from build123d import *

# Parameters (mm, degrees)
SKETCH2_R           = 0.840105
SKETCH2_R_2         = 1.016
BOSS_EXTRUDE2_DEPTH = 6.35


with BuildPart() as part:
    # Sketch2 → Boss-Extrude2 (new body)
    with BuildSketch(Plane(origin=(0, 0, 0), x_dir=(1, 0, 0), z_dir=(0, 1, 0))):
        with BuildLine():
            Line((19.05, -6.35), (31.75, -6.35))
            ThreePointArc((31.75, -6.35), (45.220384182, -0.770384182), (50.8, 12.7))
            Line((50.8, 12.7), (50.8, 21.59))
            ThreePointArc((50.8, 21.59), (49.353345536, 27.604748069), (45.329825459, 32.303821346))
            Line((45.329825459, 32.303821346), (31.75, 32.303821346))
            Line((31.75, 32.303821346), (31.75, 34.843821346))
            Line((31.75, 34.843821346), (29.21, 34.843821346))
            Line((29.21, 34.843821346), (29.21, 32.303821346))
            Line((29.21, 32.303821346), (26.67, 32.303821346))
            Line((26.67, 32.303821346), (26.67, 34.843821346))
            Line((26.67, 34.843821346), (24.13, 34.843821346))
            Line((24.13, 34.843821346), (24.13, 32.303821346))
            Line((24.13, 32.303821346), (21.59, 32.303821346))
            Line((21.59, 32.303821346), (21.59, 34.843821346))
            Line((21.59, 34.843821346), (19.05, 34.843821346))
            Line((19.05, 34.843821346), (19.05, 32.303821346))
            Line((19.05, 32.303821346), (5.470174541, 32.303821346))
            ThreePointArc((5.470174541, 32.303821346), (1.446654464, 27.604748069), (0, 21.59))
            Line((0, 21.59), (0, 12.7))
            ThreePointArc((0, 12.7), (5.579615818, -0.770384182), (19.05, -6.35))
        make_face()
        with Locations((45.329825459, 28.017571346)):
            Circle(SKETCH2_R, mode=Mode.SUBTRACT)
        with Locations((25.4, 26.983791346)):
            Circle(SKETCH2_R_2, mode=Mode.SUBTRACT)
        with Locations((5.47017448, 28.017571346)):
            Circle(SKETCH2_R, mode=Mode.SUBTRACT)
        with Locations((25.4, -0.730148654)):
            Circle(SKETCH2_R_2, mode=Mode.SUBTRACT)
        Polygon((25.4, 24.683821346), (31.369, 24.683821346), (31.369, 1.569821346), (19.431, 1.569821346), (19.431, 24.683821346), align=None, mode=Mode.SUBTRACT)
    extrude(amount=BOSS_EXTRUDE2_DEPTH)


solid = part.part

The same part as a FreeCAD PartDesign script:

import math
import FreeCAD as App
import Part
import Sketcher

V = App.Vector
Q = App.Units.Quantity

doc = App.newDocument("Part")
body = doc.addObject("PartDesign::Body", "Body")

# Sketch on XZ plane
sketch1 = body.newObject("Sketcher::SketchObject", "Sketch")
sketch1.AttachmentSupport = (doc.getObject("XZ_Plane"), [""])
sketch1.MapMode = "FlatFace"
sketch1.addGeometry(Part.LineSegment(V(19.05, 6.35, 0), V(31.75, 6.35, 0)), False)
sketch1.addGeometry(Part.ArcOfCircle(Part.Circle(V(31.75, -12.7, 0), V(0, 0, 1), 19.05), math.radians(0), math.radians(90)), False)
sketch1.addGeometry(Part.LineSegment(V(50.8, -12.7, 0), V(50.8, -21.59, 0)), False)
sketch1.addGeometry(Part.ArcOfCircle(Part.Circle(V(37.572929, -21.59, 0), V(0, 0, 1), 13.227071), math.radians(-54.095145), math.radians(0)), False)
sketch1.addGeometry(Part.LineSegment(V(45.329825, -32.303821, 0), V(31.75, -32.303821, 0)), False)
sketch1.addGeometry(Part.LineSegment(V(31.75, -32.303821, 0), V(31.75, -34.843821, 0)), False)
sketch1.addGeometry(Part.LineSegment(V(31.75, -34.843821, 0), V(29.21, -34.843821, 0)), False)
sketch1.addGeometry(Part.LineSegment(V(29.21, -34.843821, 0), V(29.21, -32.303821, 0)), False)
sketch1.addGeometry(Part.LineSegment(V(29.21, -32.303821, 0), V(26.67, -32.303821, 0)), False)
sketch1.addGeometry(Part.LineSegment(V(26.67, -32.303821, 0), V(26.67, -34.843821, 0)), False)
sketch1.addGeometry(Part.LineSegment(V(26.67, -34.843821, 0), V(24.13, -34.843821, 0)), False)
sketch1.addGeometry(Part.LineSegment(V(24.13, -34.843821, 0), V(24.13, -32.303821, 0)), False)
sketch1.addGeometry(Part.LineSegment(V(24.13, -32.303821, 0), V(21.59, -32.303821, 0)), False)
sketch1.addGeometry(Part.LineSegment(V(21.59, -32.303821, 0), V(21.59, -34.843821, 0)), False)
sketch1.addGeometry(Part.LineSegment(V(21.59, -34.843821, 0), V(19.05, -34.843821, 0)), False)
sketch1.addGeometry(Part.LineSegment(V(19.05, -34.843821, 0), V(19.05, -32.303821, 0)), False)
sketch1.addGeometry(Part.LineSegment(V(19.05, -32.303821, 0), V(5.470175, -32.303821, 0)), False)
sketch1.addGeometry(Part.ArcOfCircle(Part.Circle(V(13.227071, -21.59, 0), V(0, 0, 1), 13.227071), math.radians(-180), math.radians(-125.904855)), False)
sketch1.addGeometry(Part.LineSegment(V(0, -21.59, 0), V(0, -12.7, 0)), False)
sketch1.addGeometry(Part.ArcOfCircle(Part.Circle(V(19.05, -12.7, 0), V(0, 0, 1), 19.05), math.radians(90), math.radians(180)), False)
sketch1.addGeometry(Part.Circle(V(25.4, 0.730149, 0), V(0, 0, 1), 1.016), False)
sketch1.addGeometry(Part.LineSegment(V(19.431, -24.683821, 0), V(31.369, -24.683821, 0)), False)
sketch1.addGeometry(Part.LineSegment(V(31.369, -24.683821, 0), V(31.369, -1.569821, 0)), False)
sketch1.addGeometry(Part.LineSegment(V(31.369, -1.569821, 0), V(19.431, -1.569821, 0)), False)
sketch1.addGeometry(Part.LineSegment(V(19.431, -1.569821, 0), V(19.431, -24.683821, 0)), False)
sketch1.addGeometry(Part.Circle(V(5.470174, -28.017571, 0), V(0, 0, 1), 0.840105), False)
sketch1.addGeometry(Part.Circle(V(25.4, -26.983791, 0), V(0, 0, 1), 1.016), False)
sketch1.addGeometry(Part.Circle(V(45.329825, -28.017571, 0), V(0, 0, 1), 0.840105), False)
sketch1.addConstraint(Sketcher.Constraint("Tangent", 0, 2, 1, 2))
sketch1.addConstraint(Sketcher.Constraint("Tangent", 1, 1, 2, 1))
sketch1.addConstraint(Sketcher.Constraint("Tangent", 2, 2, 3, 2))
sketch1.addConstraint(Sketcher.Constraint("Coincident", 3, 1, 4, 1))
sketch1.addConstraint(Sketcher.Constraint("Coincident", 4, 2, 5, 1))
sketch1.addConstraint(Sketcher.Constraint("Coincident", 5, 2, 6, 1))
sketch1.addConstraint(Sketcher.Constraint("Coincident", 6, 2, 7, 1))
sketch1.addConstraint(Sketcher.Constraint("Coincident", 7, 2, 8, 1))
sketch1.addConstraint(Sketcher.Constraint("Coincident", 8, 2, 9, 1))
sketch1.addConstraint(Sketcher.Constraint("Coincident", 9, 2, 10, 1))
sketch1.addConstraint(Sketcher.Constraint("Coincident", 10, 2, 11, 1))
sketch1.addConstraint(Sketcher.Constraint("Coincident", 11, 2, 12, 1))
sketch1.addConstraint(Sketcher.Constraint("Coincident", 12, 2, 13, 1))
sketch1.addConstraint(Sketcher.Constraint("Coincident", 13, 2, 14, 1))
sketch1.addConstraint(Sketcher.Constraint("Coincident", 14, 2, 15, 1))
sketch1.addConstraint(Sketcher.Constraint("Coincident", 15, 2, 16, 1))
sketch1.addConstraint(Sketcher.Constraint("Coincident", 16, 2, 17, 2))
sketch1.addConstraint(Sketcher.Constraint("Tangent", 17, 1, 18, 1))
sketch1.addConstraint(Sketcher.Constraint("Tangent", 18, 2, 19, 2))
sketch1.addConstraint(Sketcher.Constraint("Tangent", 19, 1, 0, 1))
sketch1.addConstraint(Sketcher.Constraint("Coincident", 21, 2, 22, 1))
sketch1.addConstraint(Sketcher.Constraint("Coincident", 22, 2, 23, 1))
sketch1.addConstraint(Sketcher.Constraint("Coincident", 23, 2, 24, 1))
sketch1.addConstraint(Sketcher.Constraint("Coincident", 24, 2, 21, 1))
sketch1.addConstraint(Sketcher.Constraint("Horizontal", 0))
sketch1.addConstraint(Sketcher.Constraint("Vertical", 2))
sketch1.addConstraint(Sketcher.Constraint("Horizontal", 4))
sketch1.addConstraint(Sketcher.Constraint("Vertical", 5))
sketch1.addConstraint(Sketcher.Constraint("Horizontal", 6))
sketch1.addConstraint(Sketcher.Constraint("Vertical", 7))
sketch1.addConstraint(Sketcher.Constraint("Horizontal", 8))
sketch1.addConstraint(Sketcher.Constraint("Vertical", 9))
sketch1.addConstraint(Sketcher.Constraint("Horizontal", 10))
sketch1.addConstraint(Sketcher.Constraint("Vertical", 11))
sketch1.addConstraint(Sketcher.Constraint("Horizontal", 12))
sketch1.addConstraint(Sketcher.Constraint("Vertical", 13))
sketch1.addConstraint(Sketcher.Constraint("Horizontal", 14))
sketch1.addConstraint(Sketcher.Constraint("Vertical", 15))
sketch1.addConstraint(Sketcher.Constraint("Horizontal", 16))
sketch1.addConstraint(Sketcher.Constraint("Vertical", 18))
sketch1.addConstraint(Sketcher.Constraint("Horizontal", 21))
sketch1.addConstraint(Sketcher.Constraint("Vertical", 22))
sketch1.addConstraint(Sketcher.Constraint("Horizontal", 23))
sketch1.addConstraint(Sketcher.Constraint("Vertical", 24))
sketch1.addConstraint(Sketcher.Constraint("Equal", 3, 17))
sketch1.addConstraint(Sketcher.Constraint("Equal", 1, 19))
sketch1.addConstraint(Sketcher.Constraint("Equal", 20, 26))
sketch1.addConstraint(Sketcher.Constraint("Equal", 25, 27))
sketch1.addConstraint(Sketcher.Constraint("PointOnObject", 17, 1, -2))
sketch1.addConstraint(Sketcher.Constraint("Horizontal", 3, 3, 17, 3))
sketch1.addConstraint(Sketcher.Constraint("Horizontal", 25, 3, 27, 3))
sketch1.addConstraint(Sketcher.Constraint("Horizontal", 4, 2, 7, 2))
sketch1.addConstraint(Sketcher.Constraint("Horizontal", 6, 2, 9, 2))
sketch1.addConstraint(Sketcher.Constraint("Horizontal", 8, 2, 11, 2))
sketch1.addConstraint(Sketcher.Constraint("Horizontal", 10, 2, 13, 2))
sketch1.addConstraint(Sketcher.Constraint("Horizontal", 12, 2, 15, 2))
sketch1.addConstraint(Sketcher.Constraint("Vertical", 20, 3, 26, 3))
sketch1.addConstraint(Sketcher.Constraint("Vertical", 27, 3, 3, 1))
sketch1.addConstraint(Sketcher.Constraint("Vertical", 0, 2, 4, 2))
sketch1.addConstraint(Sketcher.Constraint("Vertical", 19, 3, 14, 2))
sketch1.addConstraint(Sketcher.Constraint("Vertical", 25, 3, 16, 2))
sketch1.addConstraint(Sketcher.Constraint("Equal", 6, 8))
sketch1.addConstraint(Sketcher.Constraint("Equal", 8, 10))
sketch1.addConstraint(Sketcher.Constraint("Equal", 10, 12))
sketch1.addConstraint(Sketcher.Constraint("Equal", 12, 14))
sketch1.addConstraint(Sketcher.Constraint("Equal", 14, 5))
sketch1.addConstraint(Sketcher.Constraint("Diameter", 20, Q("0.08 in")))
sketch1.addConstraint(Sketcher.Constraint("Radius", 1, Q("0.75 in")))
sketch1.addConstraint(Sketcher.Constraint("DistanceX", 0, 1, 0, 2, Q("0.5 in")))
sketch1.addConstraint(Sketcher.Constraint("DistanceX", -1, 1, 20, 3, Q("1 in")))
sketch1.addConstraint(Sketcher.Constraint("DistanceX", 21, 1, 21, 2, Q("0.47 in")))
sketch1.addConstraint(Sketcher.Constraint("DistanceY", 2, 2, 2, 1, Q("0.35 in")))
sketch1.addConstraint(Sketcher.Constraint("DistanceY", 22, 1, 22, 2, Q("0.91 in")))
sketch1.addConstraint(Sketcher.Constraint("DistanceY", 1, 3, -1, 1, Q("0.5 in")))
sketch1.addConstraint(Sketcher.Constraint("DistanceY", 4, 2, 21, 2, Q("0.3 in")))
sketch1.addConstraint(Sketcher.Constraint("Diameter", 25, 1.68021))
sketch1.addConstraint(Sketcher.Constraint("DistanceX", -1, 1, 21, 2, Q("1.235 in")))
sketch1.addConstraint(Sketcher.Constraint("Radius", 3, 13.227071))
sketch1.addConstraint(Sketcher.Constraint("DistanceY", 25, 3, 20, 3, Q("1.1318 in")))
sketch1.addConstraint(Sketcher.Constraint("DistanceY", 25, 3, 26, 3, Q("0.0407 in")))
sketch1.addConstraint(Sketcher.Constraint("DistanceX", 4, 2, 4, 1, 13.579825))
sketch1.addConstraint(Sketcher.Constraint("DistanceY", -1, 1, 20, 3, 0.730149))
pad1 = body.newObject("PartDesign::Pad", "Pad")
pad1.Profile = sketch1
pad1.Length = Q("0.25 in")
pad1.Reversed = True

doc.recompute()
